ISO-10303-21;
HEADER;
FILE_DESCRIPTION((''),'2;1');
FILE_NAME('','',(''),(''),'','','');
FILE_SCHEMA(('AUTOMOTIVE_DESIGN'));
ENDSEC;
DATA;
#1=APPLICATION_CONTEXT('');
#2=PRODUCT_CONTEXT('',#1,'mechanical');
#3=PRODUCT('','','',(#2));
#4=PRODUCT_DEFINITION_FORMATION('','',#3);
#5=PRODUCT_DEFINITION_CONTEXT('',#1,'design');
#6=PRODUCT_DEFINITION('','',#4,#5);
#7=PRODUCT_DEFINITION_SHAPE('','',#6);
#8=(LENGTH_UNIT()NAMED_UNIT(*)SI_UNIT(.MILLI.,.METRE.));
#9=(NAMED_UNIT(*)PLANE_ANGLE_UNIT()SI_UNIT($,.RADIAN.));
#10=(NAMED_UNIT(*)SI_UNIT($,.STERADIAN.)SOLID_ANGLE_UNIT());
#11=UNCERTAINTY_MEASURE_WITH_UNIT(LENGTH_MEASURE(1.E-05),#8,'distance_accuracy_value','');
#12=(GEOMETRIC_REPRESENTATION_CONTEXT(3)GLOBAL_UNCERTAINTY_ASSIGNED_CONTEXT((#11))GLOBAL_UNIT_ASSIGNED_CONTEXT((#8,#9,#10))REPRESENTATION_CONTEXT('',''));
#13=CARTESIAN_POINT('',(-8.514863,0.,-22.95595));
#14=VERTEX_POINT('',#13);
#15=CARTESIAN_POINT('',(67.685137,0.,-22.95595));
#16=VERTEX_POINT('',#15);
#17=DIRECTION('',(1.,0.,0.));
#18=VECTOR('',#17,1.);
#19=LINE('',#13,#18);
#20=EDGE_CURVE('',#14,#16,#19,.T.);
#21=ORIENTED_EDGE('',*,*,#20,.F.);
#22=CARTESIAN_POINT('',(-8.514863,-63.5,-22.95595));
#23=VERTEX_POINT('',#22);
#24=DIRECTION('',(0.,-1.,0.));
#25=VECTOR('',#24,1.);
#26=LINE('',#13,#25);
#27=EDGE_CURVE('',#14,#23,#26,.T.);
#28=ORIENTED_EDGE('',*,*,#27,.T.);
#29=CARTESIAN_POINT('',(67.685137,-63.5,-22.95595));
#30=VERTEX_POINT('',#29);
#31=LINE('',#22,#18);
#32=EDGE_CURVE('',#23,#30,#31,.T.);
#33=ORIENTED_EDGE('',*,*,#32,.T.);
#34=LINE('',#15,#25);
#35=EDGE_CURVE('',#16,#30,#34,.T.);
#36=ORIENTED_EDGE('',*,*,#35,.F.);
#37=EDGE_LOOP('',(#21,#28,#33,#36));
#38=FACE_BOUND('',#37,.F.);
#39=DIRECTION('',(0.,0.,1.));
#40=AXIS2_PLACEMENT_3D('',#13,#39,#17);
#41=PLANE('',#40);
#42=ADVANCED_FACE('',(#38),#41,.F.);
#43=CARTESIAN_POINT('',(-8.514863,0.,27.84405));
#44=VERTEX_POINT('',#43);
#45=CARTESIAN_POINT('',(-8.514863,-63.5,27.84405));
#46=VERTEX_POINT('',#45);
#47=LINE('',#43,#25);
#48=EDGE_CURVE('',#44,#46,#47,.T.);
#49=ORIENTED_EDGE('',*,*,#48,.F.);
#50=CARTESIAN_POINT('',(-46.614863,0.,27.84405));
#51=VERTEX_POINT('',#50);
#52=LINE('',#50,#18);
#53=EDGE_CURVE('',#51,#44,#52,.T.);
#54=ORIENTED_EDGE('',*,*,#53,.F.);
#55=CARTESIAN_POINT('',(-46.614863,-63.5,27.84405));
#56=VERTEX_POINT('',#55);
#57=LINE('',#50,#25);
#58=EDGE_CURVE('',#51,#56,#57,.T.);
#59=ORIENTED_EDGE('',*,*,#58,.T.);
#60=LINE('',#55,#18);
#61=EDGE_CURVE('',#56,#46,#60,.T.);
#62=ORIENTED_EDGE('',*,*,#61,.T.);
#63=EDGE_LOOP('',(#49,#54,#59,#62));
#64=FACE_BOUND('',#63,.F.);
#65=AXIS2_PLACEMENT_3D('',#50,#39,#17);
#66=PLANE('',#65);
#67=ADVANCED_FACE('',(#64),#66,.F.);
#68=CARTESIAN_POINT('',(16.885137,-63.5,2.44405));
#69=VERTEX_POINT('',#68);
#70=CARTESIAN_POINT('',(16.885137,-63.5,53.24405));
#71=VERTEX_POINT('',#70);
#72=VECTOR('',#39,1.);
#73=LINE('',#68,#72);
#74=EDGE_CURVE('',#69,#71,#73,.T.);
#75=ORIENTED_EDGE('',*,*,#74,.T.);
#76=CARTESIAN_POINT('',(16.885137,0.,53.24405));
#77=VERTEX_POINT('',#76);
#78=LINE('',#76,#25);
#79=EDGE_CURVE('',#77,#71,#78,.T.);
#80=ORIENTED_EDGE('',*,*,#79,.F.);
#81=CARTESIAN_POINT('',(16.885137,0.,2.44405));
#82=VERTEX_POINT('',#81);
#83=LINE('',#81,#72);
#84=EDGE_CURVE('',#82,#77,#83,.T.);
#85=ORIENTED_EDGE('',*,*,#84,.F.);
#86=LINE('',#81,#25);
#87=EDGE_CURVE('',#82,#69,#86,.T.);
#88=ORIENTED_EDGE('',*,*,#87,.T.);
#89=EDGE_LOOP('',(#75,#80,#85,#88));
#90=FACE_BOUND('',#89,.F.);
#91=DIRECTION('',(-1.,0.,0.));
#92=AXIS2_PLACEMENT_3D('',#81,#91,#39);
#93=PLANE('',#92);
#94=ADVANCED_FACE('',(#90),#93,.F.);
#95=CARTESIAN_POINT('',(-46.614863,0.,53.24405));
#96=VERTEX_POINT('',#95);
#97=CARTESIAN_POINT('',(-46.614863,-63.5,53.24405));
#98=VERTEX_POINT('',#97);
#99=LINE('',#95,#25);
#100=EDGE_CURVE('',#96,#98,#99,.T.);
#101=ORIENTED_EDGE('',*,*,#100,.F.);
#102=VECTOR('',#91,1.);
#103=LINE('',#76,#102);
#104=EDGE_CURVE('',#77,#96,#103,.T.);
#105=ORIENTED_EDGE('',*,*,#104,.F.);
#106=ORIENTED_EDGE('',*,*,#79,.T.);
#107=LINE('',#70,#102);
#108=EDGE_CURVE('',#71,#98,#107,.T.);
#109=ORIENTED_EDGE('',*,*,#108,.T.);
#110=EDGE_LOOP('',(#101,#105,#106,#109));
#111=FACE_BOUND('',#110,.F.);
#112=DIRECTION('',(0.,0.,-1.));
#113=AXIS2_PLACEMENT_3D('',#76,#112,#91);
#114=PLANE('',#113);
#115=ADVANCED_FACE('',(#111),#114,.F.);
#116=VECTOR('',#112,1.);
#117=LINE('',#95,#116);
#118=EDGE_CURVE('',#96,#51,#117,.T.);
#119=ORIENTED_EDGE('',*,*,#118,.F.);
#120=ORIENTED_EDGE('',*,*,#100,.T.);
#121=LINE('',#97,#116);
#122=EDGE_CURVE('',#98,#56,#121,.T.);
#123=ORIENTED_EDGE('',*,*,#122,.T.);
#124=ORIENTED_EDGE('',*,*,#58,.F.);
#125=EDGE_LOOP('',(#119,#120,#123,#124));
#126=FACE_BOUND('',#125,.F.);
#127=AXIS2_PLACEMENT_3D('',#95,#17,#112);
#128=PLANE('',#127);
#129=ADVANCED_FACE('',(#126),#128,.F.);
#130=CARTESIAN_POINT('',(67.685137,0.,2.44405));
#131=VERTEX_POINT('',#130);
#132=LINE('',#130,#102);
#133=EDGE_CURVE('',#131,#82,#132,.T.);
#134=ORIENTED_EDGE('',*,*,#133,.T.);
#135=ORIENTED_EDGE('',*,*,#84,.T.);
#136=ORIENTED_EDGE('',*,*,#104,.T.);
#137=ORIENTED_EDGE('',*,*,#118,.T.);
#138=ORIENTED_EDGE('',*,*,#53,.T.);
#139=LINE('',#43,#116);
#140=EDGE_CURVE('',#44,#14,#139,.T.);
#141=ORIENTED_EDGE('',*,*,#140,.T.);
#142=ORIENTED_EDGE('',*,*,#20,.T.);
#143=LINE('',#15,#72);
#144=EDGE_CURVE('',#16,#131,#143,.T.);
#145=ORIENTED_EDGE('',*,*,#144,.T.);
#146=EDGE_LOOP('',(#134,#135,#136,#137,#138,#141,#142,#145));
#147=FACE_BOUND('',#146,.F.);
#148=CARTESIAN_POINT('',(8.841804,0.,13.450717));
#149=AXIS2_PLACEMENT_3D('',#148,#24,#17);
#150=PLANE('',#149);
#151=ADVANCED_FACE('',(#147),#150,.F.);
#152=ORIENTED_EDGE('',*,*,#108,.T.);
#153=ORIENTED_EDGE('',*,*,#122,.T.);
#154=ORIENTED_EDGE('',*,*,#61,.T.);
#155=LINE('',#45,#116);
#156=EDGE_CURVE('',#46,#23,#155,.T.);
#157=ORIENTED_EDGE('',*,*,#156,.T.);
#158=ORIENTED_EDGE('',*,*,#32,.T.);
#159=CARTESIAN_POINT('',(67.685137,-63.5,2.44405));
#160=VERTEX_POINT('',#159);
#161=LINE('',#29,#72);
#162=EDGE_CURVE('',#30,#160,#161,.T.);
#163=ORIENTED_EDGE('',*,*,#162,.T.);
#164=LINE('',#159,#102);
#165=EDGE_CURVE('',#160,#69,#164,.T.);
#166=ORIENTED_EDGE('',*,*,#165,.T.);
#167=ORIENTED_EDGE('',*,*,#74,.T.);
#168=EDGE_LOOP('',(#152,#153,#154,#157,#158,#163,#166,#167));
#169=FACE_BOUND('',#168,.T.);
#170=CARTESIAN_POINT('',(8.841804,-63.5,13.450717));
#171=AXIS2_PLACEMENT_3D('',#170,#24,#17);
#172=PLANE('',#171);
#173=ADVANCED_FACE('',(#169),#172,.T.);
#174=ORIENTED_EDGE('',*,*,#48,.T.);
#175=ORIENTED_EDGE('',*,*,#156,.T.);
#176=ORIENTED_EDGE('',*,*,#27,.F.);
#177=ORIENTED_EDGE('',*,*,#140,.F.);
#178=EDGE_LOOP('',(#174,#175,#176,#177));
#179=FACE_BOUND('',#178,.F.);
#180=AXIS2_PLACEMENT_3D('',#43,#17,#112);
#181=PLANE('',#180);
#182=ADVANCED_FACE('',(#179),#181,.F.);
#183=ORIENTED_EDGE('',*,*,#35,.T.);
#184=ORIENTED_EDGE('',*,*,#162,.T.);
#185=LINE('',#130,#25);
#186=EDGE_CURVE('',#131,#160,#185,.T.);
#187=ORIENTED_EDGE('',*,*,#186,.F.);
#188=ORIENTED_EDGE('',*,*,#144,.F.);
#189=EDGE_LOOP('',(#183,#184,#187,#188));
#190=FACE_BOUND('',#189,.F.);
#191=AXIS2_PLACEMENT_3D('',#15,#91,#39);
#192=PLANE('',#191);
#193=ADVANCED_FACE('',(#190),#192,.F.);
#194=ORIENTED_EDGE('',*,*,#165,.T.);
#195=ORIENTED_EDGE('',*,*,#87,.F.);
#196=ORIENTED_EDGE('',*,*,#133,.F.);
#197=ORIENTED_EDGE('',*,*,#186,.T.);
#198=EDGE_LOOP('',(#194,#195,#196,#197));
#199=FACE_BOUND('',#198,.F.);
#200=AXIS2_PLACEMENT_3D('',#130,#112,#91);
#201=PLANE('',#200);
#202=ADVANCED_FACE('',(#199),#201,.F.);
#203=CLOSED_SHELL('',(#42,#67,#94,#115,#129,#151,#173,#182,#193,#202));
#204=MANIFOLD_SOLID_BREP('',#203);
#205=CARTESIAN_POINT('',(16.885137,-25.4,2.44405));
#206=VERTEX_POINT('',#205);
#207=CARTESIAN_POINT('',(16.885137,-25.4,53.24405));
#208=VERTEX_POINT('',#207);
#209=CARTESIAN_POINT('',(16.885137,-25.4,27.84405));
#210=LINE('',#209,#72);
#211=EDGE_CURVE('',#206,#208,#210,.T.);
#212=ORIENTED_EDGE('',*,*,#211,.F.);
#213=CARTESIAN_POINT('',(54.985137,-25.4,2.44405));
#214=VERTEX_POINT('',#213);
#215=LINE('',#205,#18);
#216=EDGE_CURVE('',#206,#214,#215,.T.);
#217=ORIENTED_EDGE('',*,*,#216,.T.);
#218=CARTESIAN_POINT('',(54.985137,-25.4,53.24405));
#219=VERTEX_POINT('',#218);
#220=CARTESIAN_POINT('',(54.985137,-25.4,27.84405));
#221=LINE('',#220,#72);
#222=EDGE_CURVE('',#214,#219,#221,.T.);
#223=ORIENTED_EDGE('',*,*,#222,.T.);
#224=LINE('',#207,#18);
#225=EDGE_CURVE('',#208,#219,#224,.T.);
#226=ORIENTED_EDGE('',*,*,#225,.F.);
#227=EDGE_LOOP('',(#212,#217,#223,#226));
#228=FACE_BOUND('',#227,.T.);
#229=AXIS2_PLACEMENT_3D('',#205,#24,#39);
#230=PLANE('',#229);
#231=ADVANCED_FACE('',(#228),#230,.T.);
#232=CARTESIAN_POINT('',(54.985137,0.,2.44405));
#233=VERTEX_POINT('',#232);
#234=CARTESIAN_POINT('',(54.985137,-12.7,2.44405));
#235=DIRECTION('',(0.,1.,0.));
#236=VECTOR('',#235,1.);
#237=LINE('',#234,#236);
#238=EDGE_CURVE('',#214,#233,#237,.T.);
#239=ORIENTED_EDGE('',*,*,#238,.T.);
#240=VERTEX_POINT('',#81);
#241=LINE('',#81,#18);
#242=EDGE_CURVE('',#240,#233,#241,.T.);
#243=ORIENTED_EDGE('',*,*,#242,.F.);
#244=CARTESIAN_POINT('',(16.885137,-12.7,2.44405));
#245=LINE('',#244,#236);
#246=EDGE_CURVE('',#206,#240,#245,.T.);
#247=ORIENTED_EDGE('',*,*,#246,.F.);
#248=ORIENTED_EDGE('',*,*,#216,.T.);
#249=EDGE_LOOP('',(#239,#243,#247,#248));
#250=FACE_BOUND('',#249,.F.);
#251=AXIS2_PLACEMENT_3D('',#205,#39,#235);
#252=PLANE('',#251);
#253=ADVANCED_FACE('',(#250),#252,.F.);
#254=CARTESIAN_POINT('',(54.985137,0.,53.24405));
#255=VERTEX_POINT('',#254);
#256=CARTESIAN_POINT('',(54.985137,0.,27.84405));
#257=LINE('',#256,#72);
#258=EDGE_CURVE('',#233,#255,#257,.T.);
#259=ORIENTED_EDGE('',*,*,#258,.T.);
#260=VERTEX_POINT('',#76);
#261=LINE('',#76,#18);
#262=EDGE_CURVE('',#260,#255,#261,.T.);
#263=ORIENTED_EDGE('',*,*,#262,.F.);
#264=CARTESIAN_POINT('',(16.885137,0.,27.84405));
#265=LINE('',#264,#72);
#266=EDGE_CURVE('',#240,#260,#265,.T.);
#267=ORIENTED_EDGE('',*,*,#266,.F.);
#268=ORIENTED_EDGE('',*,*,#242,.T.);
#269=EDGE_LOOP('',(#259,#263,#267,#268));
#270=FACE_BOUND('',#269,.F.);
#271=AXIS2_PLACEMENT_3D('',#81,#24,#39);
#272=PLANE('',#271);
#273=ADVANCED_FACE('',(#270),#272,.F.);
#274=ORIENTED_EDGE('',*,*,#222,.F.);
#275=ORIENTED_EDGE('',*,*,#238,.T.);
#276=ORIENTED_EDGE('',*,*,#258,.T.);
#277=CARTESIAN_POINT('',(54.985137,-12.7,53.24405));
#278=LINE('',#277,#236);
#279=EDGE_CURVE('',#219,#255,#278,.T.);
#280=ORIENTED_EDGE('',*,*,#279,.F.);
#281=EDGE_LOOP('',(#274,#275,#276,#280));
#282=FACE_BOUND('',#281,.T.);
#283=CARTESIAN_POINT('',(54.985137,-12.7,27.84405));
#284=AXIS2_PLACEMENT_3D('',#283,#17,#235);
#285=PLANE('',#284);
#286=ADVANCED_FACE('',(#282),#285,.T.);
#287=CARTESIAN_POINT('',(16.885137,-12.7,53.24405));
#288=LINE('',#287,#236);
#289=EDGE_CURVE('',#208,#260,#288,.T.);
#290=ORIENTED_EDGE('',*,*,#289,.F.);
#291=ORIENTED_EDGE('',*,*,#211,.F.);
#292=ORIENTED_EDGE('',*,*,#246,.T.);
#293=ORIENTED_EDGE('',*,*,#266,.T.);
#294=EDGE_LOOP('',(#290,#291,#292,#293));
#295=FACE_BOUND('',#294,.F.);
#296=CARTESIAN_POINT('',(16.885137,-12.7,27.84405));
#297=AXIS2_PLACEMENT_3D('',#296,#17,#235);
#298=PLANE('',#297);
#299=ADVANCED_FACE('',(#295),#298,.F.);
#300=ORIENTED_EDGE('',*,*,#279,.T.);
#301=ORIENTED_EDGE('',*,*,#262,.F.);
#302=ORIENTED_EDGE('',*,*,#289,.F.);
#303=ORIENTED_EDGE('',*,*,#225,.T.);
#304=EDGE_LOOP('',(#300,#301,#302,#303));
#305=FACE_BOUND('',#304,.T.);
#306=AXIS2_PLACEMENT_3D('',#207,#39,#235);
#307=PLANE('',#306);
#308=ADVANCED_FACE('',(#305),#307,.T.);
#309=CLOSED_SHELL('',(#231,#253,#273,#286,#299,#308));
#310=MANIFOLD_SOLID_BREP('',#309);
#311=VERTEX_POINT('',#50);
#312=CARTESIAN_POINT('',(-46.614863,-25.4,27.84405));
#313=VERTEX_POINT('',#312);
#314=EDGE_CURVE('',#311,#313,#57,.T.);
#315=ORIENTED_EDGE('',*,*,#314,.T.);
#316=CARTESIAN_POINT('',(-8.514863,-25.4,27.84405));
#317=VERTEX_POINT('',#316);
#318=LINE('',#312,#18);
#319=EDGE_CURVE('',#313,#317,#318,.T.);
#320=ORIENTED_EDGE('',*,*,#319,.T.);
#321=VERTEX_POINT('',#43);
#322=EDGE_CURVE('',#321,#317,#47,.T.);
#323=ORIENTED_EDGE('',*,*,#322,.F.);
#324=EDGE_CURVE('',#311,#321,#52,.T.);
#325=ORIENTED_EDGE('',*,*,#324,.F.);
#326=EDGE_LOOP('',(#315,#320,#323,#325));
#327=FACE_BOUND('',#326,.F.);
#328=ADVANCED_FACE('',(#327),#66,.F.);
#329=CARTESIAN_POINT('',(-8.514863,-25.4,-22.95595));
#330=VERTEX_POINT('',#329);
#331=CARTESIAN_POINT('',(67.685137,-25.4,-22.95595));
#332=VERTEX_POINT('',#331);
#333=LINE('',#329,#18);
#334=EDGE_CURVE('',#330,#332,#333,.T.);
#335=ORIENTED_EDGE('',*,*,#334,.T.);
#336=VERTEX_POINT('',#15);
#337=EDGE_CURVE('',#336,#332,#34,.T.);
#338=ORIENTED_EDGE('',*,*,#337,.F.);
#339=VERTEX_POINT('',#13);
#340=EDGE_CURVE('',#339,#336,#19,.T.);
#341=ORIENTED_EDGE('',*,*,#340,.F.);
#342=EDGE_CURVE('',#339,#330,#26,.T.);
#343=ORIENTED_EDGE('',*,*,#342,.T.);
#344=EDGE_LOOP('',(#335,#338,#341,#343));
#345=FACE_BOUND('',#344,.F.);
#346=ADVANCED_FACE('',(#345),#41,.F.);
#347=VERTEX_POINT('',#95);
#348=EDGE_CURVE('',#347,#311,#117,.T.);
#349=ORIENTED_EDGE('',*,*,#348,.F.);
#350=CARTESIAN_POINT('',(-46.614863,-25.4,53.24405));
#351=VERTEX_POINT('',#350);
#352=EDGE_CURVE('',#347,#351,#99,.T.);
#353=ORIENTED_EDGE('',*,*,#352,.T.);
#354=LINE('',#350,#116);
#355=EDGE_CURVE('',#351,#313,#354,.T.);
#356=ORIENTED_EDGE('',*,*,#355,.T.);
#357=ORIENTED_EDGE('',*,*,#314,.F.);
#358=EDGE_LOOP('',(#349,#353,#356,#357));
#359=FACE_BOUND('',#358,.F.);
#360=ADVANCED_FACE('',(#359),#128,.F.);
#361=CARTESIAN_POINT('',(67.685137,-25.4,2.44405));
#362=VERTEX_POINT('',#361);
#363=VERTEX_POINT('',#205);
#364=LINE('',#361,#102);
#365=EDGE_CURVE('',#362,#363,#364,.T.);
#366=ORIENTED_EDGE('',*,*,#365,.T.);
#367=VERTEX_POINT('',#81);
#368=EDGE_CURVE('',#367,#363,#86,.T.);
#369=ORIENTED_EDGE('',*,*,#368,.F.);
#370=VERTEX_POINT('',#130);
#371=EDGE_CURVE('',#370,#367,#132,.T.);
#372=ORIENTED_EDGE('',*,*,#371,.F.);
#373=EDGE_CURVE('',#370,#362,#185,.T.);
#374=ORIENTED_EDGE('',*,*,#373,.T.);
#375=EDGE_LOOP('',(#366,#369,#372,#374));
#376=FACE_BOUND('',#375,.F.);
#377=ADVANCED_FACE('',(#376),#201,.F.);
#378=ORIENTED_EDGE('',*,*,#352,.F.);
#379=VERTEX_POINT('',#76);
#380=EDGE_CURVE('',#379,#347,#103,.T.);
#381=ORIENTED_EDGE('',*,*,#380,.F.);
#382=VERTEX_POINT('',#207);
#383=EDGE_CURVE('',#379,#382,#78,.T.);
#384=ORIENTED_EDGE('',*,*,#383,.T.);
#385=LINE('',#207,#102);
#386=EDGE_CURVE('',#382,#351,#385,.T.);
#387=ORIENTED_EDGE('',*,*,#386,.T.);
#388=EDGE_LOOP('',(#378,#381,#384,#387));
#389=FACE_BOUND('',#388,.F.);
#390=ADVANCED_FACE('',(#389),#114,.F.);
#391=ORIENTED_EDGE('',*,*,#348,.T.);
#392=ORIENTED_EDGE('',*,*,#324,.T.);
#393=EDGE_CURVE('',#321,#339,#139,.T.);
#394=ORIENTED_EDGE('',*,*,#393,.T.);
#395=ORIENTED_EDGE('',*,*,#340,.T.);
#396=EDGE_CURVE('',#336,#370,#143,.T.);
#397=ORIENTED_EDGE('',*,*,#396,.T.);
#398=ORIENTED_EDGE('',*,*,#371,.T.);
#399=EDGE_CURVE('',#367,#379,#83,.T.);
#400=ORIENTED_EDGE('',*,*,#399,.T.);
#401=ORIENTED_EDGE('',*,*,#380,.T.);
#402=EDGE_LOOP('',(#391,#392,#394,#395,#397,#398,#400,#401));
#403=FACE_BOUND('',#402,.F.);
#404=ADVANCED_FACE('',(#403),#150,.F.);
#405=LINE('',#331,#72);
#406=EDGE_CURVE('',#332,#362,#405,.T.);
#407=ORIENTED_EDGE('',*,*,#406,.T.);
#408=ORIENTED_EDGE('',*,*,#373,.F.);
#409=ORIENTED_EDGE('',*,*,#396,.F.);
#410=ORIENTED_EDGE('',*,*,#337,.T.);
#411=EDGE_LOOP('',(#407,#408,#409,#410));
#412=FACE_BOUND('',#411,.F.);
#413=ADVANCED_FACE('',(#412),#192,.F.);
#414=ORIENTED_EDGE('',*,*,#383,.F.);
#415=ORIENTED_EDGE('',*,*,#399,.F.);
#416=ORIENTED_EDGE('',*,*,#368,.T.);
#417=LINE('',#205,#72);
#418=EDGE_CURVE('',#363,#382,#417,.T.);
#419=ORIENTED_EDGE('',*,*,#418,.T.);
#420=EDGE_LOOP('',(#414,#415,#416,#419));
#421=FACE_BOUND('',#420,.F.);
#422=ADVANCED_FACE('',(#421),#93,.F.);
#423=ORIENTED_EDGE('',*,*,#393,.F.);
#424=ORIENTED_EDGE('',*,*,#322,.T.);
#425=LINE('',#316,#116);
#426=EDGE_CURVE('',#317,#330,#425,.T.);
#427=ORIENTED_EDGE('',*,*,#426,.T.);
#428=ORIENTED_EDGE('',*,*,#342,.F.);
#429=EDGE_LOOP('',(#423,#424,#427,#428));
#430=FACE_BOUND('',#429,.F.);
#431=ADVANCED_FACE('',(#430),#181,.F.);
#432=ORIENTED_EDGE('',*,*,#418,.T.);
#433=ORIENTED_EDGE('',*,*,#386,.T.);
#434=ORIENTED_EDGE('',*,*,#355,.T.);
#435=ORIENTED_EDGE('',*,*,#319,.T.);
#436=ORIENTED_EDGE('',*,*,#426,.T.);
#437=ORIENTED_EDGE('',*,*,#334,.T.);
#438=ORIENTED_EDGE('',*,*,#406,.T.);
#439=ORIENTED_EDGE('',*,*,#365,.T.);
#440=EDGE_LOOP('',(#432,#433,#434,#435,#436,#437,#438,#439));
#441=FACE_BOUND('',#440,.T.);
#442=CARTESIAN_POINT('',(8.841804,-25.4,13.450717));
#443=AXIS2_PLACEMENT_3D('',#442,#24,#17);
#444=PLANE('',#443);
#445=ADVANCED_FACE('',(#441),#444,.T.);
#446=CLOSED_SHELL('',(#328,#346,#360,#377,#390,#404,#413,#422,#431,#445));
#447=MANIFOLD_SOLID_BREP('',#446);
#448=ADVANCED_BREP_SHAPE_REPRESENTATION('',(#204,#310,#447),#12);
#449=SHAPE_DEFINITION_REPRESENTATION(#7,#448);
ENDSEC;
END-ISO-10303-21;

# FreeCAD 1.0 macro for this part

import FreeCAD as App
import Part
import Sketcher
Q = App.Units.Quantity


def add_polygon(sketch, points):
    """Adds a closed chain of lines whose ends are joined by coincident constraints."""
    first, n = sketch.GeometryCount, len(points)
    for a, b in zip(points, points[1:] + points[:1]):
        sketch.addGeometry(Part.LineSegment(App.Vector(*a, 0), App.Vector(*b, 0)), False)
    for i in range(n):
        sketch.addConstraint(Sketcher.Constraint("Coincident", first + i, 2, first + (i + 1) % n, 1))

doc = App.newDocument("Part")
body = doc.addObject("PartDesign::Body", "Body")

sketch1 = body.newObject("Sketcher::SketchObject", "Sketch")
sketch1.AttachmentSupport = (doc.getObject("XZ_Plane"), [""])
sketch1.MapMode = "FlatFace"
add_polygon(sketch1, [(17, 53), (-47, 53), (-47, 28), (-9, 28), (-9, -23), (68, -23), (68, 2), (17, 2)])
sketch1.addConstraint([
    Sketcher.Constraint("Horizontal", 0),
    Sketcher.Constraint("Vertical", 1),
    Sketcher.Constraint("Horizontal", 2),
    Sketcher.Constraint("Vertical", 3),
    Sketcher.Constraint("Horizontal", 4),
    Sketcher.Constraint("Vertical", 5),
    Sketcher.Constraint("Horizontal", 6),
    Sketcher.Constraint("Vertical", 7),
    Sketcher.Constraint("Equal", 6, 3),
    Sketcher.Constraint("Equal", 1, 5),
    Sketcher.Constraint("DistanceX", 4, 1, 4, 2, Q("3 in")),
    Sketcher.Constraint("DistanceX", 6, 2, 6, 1, Q("2 in")),
    Sketcher.Constraint("DistanceY", 1, 2, 1, 1, Q("1 in")),
    Sketcher.Constraint("DistanceX", 0, 2, 0, 1, Q("2.5 in")),
    Sketcher.Constraint("DistanceY", -1, 1, 0, 2, 53.24405),
    Sketcher.Constraint("DistanceX", 0, 2, -1, 1, 46.614863),
])
pad1 = body.newObject("PartDesign::Pad", "Pad")
pad1.Profile = sketch1
pad1.Length = Q("2.5 in")
body2 = doc.addObject("PartDesign::Body", "Body001")

sketch2 = body2.newObject("Sketcher::SketchObject", "Sketch001")
sketch2.AttachmentSupport = (doc.getObject("XZ_Plane001"), [""])
sketch2.MapMode = "FlatFace"
add_polygon(sketch2, [(17, 53), (-47, 53), (-47, 28), (-9, 28), (-9, -23), (68, -23), (68, 2), (17, 2)])
sketch2.addConstraint([
    Sketcher.Constraint("Horizontal", 0),
    Sketcher.Constraint("Vertical", 1),
    Sketcher.Constraint("Horizontal", 2),
    Sketcher.Constraint("Vertical", 3),
    Sketcher.Constraint("Horizontal", 4),
    Sketcher.Constraint("Vertical", 5),
    Sketcher.Constraint("Horizontal", 6),
    Sketcher.Constraint("Vertical", 7),
    Sketcher.Constraint("Equal", 6, 3),
    Sketcher.Constraint("Equal", 1, 5),
    Sketcher.Constraint("DistanceX", 4, 1, 4, 2, Q("3 in")),
    Sketcher.Constraint("DistanceX", 6, 2, 6, 1, Q("2 in")),
    Sketcher.Constraint("DistanceY", 1, 2, 1, 1, Q("1 in")),
    Sketcher.Constraint("DistanceX", 0, 2, 0, 1, Q("2.5 in")),
    Sketcher.Constraint("DistanceY", -1, 1, 0, 2, 53.24405),
    Sketcher.Constraint("DistanceX", 0, 2, -1, 1, 46.614863),
])
pad2 = body2.newObject("PartDesign::Pad", "Pad001")
pad2.Profile = sketch2
pad2.Length = Q("1 in")
body3 = doc.addObject("PartDesign::Body", "Body002")

sketch3 = body3.newObject("Sketcher::SketchObject", "Sketch002")
sketch3.AttachmentSupport = (doc.getObject("YZ_Plane002"), [""])
sketch3.MapMode = "FlatFace"
sketch3.AttachmentOffset = App.Placement(App.Vector(0, 0, 16.885137), App.Rotation())
add_polygon(sketch3, [(-25, 53), (-25, 2), (0, 2), (0, 53)])
sketch3.addConstraint([
    Sketcher.Constraint("Vertical", 0),
    Sketcher.Constraint("Horizontal", 1),
    Sketcher.Constraint("Vertical", 2),
    Sketcher.Constraint("Horizontal", 3),
    Sketcher.Constraint("PointOnObject", 1, 2, -2),
    Sketcher.Constraint("DistanceX", 1, 1, 1, 2, Q("1 in")),
    Sketcher.Constraint("DistanceY", 0, 2, 0, 1, Q("2 in")),
    Sketcher.Constraint("DistanceY", -1, 1, 0, 2, 2.44405),
])
pad3 = body3.newObject("PartDesign::Pad", "Pad002")
pad3.Profile = sketch3
pad3.Length = Q("1.5 in")

doc.recompute()
